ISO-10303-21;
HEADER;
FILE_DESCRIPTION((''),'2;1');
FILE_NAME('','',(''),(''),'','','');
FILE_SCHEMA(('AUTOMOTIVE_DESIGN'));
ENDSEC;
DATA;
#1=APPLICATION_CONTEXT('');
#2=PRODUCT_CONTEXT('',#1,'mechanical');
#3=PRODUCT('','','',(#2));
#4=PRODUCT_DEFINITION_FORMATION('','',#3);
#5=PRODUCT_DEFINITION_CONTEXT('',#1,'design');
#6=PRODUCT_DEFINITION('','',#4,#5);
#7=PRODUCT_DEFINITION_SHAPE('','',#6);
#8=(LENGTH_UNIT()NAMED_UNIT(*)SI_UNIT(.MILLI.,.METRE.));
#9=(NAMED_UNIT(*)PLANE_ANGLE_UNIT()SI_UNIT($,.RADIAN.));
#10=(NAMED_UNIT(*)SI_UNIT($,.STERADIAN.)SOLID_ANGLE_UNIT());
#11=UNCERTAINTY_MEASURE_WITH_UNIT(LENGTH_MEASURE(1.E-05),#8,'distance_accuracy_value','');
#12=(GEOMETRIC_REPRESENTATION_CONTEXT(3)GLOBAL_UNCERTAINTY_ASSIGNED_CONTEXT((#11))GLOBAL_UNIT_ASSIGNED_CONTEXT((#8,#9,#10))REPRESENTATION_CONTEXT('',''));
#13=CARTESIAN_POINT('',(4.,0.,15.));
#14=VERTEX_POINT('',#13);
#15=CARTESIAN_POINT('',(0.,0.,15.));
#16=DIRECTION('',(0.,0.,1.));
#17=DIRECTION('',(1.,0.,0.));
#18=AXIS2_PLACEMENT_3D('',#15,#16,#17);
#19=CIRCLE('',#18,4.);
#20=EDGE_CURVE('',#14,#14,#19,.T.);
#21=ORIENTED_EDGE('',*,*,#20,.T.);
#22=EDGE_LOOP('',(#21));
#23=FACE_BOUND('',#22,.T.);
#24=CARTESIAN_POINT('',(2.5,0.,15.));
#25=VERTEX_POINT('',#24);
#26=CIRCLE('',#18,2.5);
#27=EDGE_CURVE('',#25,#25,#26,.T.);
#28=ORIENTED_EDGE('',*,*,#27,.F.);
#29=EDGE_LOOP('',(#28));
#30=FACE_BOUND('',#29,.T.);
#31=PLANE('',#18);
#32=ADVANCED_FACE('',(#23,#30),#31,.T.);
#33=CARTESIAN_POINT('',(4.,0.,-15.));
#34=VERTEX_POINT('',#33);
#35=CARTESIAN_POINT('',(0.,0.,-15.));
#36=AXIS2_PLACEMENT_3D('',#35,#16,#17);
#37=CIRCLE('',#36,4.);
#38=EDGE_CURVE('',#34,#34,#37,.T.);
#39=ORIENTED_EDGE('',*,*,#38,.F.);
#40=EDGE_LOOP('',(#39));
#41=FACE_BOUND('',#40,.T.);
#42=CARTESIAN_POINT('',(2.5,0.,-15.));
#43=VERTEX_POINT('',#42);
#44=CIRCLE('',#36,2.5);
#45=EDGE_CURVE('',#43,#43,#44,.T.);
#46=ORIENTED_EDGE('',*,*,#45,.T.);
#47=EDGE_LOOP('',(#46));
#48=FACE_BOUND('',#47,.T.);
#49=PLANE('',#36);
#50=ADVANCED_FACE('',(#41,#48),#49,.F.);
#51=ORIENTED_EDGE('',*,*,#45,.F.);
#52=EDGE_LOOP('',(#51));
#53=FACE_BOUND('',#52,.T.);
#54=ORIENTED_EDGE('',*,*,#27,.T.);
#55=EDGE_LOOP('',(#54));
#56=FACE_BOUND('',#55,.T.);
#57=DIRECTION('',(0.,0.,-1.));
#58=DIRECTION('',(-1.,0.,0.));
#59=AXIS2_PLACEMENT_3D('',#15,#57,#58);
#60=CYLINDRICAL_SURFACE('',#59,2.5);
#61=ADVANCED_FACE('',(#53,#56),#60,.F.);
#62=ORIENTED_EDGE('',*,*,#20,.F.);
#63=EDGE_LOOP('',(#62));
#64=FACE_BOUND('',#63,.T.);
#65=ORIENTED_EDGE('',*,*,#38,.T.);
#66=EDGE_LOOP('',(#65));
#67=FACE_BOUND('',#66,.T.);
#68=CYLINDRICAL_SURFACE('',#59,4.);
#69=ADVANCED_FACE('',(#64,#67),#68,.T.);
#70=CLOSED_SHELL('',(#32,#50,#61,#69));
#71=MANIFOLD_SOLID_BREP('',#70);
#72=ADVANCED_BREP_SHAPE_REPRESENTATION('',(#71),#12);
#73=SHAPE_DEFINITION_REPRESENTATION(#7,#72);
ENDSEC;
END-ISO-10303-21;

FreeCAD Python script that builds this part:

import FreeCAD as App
import Part
import Sketcher
Q = App.Units.Quantity

doc = App.newDocument("Part")
body = doc.addObject("PartDesign::Body", "Body")

# Sketch on XY plane
sketch1 = doc.addObject("Sketcher::SketchObject", "Sketch")
body.addObject(sketch1)
sketch1.AttachmentSupport = (doc.XY_Plane, [""])
sketch1.MapMode = "FlatFace"
sketch1.addGeometry(Part.Circle(App.Vector(0, 0, 0), App.Vector(0, 0, 1), 4), False)
sketch1.addGeometry(Part.Circle(App.Vector(0, 0, 0), App.Vector(0, 0, 1), 2.5), False)
sketch1.addConstraint(Sketcher.Constraint("Coincident", 0, 3, -1, 1))
sketch1.addConstraint(Sketcher.Constraint("Coincident", 1, 3, -1, 1))
sketch1.addConstraint(Sketcher.Constraint("Diameter", 0, Q("8 mm")))
sketch1.addConstraint(Sketcher.Constraint("Diameter", 1, Q("5 mm")))
pad1 = doc.addObject("PartDesign::Pad", "Pad")
body.addObject(pad1)
pad1.Profile = sketch1
pad1.Length = 30
pad1.Midplane = True

doc.recompute()
